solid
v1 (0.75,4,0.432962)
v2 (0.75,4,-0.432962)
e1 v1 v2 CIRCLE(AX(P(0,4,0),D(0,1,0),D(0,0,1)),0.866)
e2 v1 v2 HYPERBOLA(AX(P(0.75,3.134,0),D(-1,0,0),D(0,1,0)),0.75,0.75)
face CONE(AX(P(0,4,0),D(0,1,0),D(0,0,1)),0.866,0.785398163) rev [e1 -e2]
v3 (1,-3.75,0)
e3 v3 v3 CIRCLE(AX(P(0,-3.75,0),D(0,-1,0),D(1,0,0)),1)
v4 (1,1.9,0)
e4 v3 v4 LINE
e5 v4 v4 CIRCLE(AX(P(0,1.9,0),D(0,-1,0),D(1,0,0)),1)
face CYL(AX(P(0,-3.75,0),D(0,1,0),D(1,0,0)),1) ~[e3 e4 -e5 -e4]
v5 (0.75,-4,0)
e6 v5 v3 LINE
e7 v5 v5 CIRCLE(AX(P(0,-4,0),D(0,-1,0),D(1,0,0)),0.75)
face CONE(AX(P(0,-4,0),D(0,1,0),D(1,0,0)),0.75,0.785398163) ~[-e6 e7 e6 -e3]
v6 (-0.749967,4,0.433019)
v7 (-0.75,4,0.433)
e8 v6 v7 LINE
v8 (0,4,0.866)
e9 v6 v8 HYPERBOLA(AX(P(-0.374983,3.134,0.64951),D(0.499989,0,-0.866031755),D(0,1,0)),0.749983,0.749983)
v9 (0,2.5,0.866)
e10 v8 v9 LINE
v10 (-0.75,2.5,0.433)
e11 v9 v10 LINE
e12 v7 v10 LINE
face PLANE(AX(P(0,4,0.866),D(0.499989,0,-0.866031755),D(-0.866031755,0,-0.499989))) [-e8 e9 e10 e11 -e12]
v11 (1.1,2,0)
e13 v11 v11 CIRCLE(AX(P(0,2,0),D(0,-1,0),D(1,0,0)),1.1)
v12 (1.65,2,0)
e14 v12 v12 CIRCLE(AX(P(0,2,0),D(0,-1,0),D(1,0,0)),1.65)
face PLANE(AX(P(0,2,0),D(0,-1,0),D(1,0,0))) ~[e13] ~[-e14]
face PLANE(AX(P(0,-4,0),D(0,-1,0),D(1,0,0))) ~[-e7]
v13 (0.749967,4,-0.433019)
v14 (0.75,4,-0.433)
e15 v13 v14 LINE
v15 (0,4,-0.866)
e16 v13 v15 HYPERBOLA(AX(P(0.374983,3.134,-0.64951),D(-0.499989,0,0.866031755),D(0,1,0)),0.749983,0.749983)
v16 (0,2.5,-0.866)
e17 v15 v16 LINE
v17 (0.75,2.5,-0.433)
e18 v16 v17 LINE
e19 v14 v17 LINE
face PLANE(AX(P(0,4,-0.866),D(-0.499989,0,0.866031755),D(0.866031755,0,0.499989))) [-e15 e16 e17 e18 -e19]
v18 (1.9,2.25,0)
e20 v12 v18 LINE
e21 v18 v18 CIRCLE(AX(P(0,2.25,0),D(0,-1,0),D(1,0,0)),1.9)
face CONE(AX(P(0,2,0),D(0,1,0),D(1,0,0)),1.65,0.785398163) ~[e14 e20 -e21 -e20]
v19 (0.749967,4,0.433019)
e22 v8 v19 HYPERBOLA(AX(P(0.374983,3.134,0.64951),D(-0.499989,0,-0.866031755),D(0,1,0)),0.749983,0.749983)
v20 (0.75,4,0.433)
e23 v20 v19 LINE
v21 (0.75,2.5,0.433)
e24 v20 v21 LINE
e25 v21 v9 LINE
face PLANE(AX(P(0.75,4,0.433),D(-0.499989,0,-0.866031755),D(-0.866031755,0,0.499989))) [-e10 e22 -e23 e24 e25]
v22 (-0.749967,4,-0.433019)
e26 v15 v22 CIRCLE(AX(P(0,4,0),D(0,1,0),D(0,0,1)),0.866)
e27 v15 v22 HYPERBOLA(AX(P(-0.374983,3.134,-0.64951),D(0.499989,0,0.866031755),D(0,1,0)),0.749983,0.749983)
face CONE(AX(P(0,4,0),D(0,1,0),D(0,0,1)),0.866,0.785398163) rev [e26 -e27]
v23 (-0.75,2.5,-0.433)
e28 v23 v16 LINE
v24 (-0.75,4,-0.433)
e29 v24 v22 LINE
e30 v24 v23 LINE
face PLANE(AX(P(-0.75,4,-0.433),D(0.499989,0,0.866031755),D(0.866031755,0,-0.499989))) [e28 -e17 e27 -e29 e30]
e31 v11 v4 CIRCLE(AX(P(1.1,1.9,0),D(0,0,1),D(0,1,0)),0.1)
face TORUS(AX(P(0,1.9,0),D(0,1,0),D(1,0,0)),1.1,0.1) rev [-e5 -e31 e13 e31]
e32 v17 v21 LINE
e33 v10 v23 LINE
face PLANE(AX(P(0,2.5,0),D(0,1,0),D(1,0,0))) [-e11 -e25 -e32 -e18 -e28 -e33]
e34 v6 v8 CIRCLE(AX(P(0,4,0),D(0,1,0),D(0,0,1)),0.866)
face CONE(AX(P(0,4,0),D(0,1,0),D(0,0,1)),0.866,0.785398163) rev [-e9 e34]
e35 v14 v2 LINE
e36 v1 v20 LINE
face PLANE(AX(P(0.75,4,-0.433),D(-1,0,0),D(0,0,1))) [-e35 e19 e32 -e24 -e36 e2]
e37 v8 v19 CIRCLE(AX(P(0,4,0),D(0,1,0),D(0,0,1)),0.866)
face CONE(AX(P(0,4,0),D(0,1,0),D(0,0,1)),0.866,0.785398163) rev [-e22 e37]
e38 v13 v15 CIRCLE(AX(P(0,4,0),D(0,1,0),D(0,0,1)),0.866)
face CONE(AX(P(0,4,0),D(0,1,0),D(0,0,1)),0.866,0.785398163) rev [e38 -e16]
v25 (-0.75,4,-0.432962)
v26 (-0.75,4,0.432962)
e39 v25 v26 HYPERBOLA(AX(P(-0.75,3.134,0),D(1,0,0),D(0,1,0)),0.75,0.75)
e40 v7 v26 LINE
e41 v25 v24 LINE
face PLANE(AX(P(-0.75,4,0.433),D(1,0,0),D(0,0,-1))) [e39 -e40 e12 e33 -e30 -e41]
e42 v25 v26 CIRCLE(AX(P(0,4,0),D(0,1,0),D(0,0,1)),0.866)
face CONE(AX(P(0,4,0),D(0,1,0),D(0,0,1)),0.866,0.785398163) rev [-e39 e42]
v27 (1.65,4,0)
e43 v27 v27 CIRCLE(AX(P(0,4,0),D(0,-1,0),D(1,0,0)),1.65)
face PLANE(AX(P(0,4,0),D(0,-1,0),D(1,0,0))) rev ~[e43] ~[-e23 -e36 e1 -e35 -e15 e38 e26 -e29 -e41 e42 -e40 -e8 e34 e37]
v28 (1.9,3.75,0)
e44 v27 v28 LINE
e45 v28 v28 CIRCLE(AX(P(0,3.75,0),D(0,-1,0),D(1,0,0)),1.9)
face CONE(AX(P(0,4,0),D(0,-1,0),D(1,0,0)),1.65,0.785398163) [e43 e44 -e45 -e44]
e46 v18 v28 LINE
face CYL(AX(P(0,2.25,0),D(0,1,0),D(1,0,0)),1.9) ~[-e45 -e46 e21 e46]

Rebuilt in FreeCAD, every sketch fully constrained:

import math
import FreeCAD as App
import Part
import Sketcher
Q = App.Units.Quantity

doc = App.newDocument("Part")
body = doc.addObject("PartDesign::Body", "Body")

# Sketch on XY plane
sketch1 = doc.addObject("Sketcher::SketchObject", "Sketch")
body.addObject(sketch1)
sketch1.AttachmentSupport = (doc.XY_Plane, [""])
sketch1.MapMode = "FlatFace"
sketch1.addGeometry([
    Part.LineSegment(App.Vector(1.65, 4, 0), App.Vector(0, 4, 0)),  # 0
    Part.LineSegment(App.Vector(0, 4, 0), App.Vector(0, -4, 0)),  # 1
    Part.LineSegment(App.Vector(0, -4, 0), App.Vector(0.75, -4, 0)),  # 2
    Part.LineSegment(App.Vector(0.75, -4, 0), App.Vector(1, -3.75, 0)),  # 3
    Part.LineSegment(App.Vector(1, -3.75, 0), App.Vector(1, 1.9, 0)),  # 4
    Part.ArcOfCircle(Part.Circle(App.Vector(1.1, 1.9, 0), App.Vector(0, 0, 1), 0.1), math.radians(90), math.radians(180)),  # 5
    Part.LineSegment(App.Vector(1.1, 2, 0), App.Vector(1.65, 2, 0)),  # 6
    Part.LineSegment(App.Vector(1.65, 2, 0), App.Vector(1.9, 2.25, 0)),  # 7
    Part.LineSegment(App.Vector(1.9, 2.25, 0), App.Vector(1.9, 3.75, 0)),  # 8
    Part.LineSegment(App.Vector(1.9, 3.75, 0), App.Vector(1.65, 4, 0)),  # 9
], False)
sketch1.addConstraint([
    Sketcher.Constraint("Coincident", 0, 2, 1, 1),
    Sketcher.Constraint("Coincident", 1, 2, 2, 1),
    Sketcher.Constraint("Coincident", 2, 2, 3, 1),
    Sketcher.Constraint("Coincident", 3, 2, 4, 1),
    Sketcher.Constraint("Tangent", 4, 2, 5, 2),
    Sketcher.Constraint("Tangent", 5, 1, 6, 1),
    Sketcher.Constraint("Coincident", 6, 2, 7, 1),
    Sketcher.Constraint("Coincident", 7, 2, 8, 1),
    Sketcher.Constraint("Coincident", 8, 2, 9, 1),
    Sketcher.Constraint("Coincident", 9, 2, 0, 1),
    Sketcher.Constraint("Horizontal", 0),
    Sketcher.Constraint("Vertical", 1),
    Sketcher.Constraint("Horizontal", 2),
    Sketcher.Constraint("Vertical", 4),
    Sketcher.Constraint("Horizontal", 6),
    Sketcher.Constraint("Vertical", 8),
    Sketcher.Constraint("Symmetric", 0, 2, 1, 2, -1, 1),
    Sketcher.Constraint("Parallel", 3, 7),
    Sketcher.Constraint("Perpendicular", 7, 9),
    Sketcher.Constraint("Vertical", 6, 2, 9, 2),
    Sketcher.Constraint("Equal", 3, 7),
    Sketcher.Constraint("Equal", 7, 9),
    Sketcher.Constraint("DistanceY", -1, 1, 5, 1, Q("2 mm")),
    Sketcher.Constraint("DistanceY", 5, 1, 0, 2, Q("2 mm")),
    Sketcher.Constraint("Radius", 5, Q("0.1 mm")),
    Sketcher.Constraint("DistanceX", 2, 2, 3, 2, Q("0.25 mm")),
    Sketcher.Constraint("DistanceX", -1, 1, 3, 2, Q("1 mm")),
    Sketcher.Constraint("DistanceX", 0, 2, 0, 1, Q("1.65 mm")),
])
revolution = doc.addObject("PartDesign::Revolution", "Revolution")
body.addObject(revolution)
revolution.Profile = sketch1
revolution.ReferenceAxis = (sketch1, ["V_Axis"])
revolution.Angle = 360

# Sketch on XZ plane
sketch2 = doc.addObject("Sketcher::SketchObject", "Sketch001")
body.addObject(sketch2)
sketch2.AttachmentSupport = (doc.XZ_Plane, [""])
sketch2.MapMode = "FlatFace"
sketch2.AttachmentOffset = App.Placement(App.Vector(0, 0, -4), App.Rotation())
sketch2.addGeometry([
    Part.LineSegment(App.Vector(-0.8, 0.4, 0), App.Vector(0, 0.9, 0)),  # 0
    Part.LineSegment(App.Vector(0, 0.9, 0), App.Vector(0.8, 0.4, 0)),  # 1
    Part.LineSegment(App.Vector(0.8, 0.4, 0), App.Vector(0.8, -0.4, 0)),  # 2
    Part.LineSegment(App.Vector(0.8, -0.4, 0), App.Vector(0, -0.9, 0)),  # 3
    Part.LineSegment(App.Vector(0, -0.9, 0), App.Vector(-0.8, -0.4, 0)),  # 4
    Part.LineSegment(App.Vector(-0.8, -0.4, 0), App.Vector(-0.8, 0.4, 0)),  # 5
], False)
sketch2.addConstraint([
    Sketcher.Constraint("Coincident", 0, 2, 1, 1),
    Sketcher.Constraint("Coincident", 1, 2, 2, 1),
    Sketcher.Constraint("Coincident", 2, 2, 3, 1),
    Sketcher.Constraint("Coincident", 3, 2, 4, 1),
    Sketcher.Constraint("Coincident", 4, 2, 5, 1),
    Sketcher.Constraint("Coincident", 5, 2, 0, 1),
    Sketcher.Constraint("Vertical", 2),
    Sketcher.Constraint("Vertical", 5),
    Sketcher.Constraint("Symmetric", 0, 2, 3, 2, -1, 1),
    Sketcher.Constraint("Symmetric", 1, 2, 4, 2, -1, 1),
    Sketcher.Constraint("PointOnObject", 0, 2, -2),
    Sketcher.Constraint("Parallel", 0, 3),
    Sketcher.Constraint("Horizontal", 2, 2, 4, 2),
    Sketcher.Constraint("DistanceX", 4, 2, 2, 2, Q("1.5 mm")),
    Sketcher.Constraint("Angle", 0, Q("29.9993 deg")),
    Sketcher.Constraint("DistanceY", 2, 2, 2, 1, Q("0.866 mm")),
])
pocket1 = doc.addObject("PartDesign::Pocket", "Pocket")
body.addObject(pocket1)
pocket1.Profile = sketch2
pocket1.Length = 1.5
pocket1.Reversed = True

# Sketch on YZ plane
sketch3 = doc.addObject("Sketcher::SketchObject", "Sketch002")
body.addObject(sketch3)
sketch3.AttachmentSupport = (doc.YZ_Plane, [""])
sketch3.MapMode = "FlatFace"
sketch3.addGeometry([
    Part.LineSegment(App.Vector(4, 0.4, 0), App.Vector(4, 0.9, 0)),
    Part.LineSegment(App.Vector(4, 0.9, 0), App.Vector(3.5, 0.4, 0)),
    Part.LineSegment(App.Vector(3.5, 0.4, 0), App.Vector(4, 0.4, 0)),
], False)
sketch3.addConstraint([
    Sketcher.Constraint("Coincident", 0, 2, 1, 1),
    Sketcher.Constraint("Coincident", 1, 2, 2, 1),
    Sketcher.Constraint("Coincident", 2, 2, 0, 1),
    Sketcher.Constraint("Vertical", 0),
    Sketcher.Constraint("Horizontal", 2),
    Sketcher.Constraint("Equal", 2, 0),
    Sketcher.Constraint("DistanceX", 2, 1, 2, 2, Q("0.5 mm")),
    Sketcher.Constraint("DistanceX", -1, 1, 0, 2, Q("4 mm")),
    Sketcher.Constraint("DistanceY", -1, 1, 0, 2, Q("0.866 mm")),
])
groove = doc.addObject("PartDesign::Groove", "Groove")
body.addObject(groove)
groove.Profile = sketch3
groove.ReferenceAxis = (sketch3, ["H_Axis"])
groove.Angle = 360

doc.recompute()
